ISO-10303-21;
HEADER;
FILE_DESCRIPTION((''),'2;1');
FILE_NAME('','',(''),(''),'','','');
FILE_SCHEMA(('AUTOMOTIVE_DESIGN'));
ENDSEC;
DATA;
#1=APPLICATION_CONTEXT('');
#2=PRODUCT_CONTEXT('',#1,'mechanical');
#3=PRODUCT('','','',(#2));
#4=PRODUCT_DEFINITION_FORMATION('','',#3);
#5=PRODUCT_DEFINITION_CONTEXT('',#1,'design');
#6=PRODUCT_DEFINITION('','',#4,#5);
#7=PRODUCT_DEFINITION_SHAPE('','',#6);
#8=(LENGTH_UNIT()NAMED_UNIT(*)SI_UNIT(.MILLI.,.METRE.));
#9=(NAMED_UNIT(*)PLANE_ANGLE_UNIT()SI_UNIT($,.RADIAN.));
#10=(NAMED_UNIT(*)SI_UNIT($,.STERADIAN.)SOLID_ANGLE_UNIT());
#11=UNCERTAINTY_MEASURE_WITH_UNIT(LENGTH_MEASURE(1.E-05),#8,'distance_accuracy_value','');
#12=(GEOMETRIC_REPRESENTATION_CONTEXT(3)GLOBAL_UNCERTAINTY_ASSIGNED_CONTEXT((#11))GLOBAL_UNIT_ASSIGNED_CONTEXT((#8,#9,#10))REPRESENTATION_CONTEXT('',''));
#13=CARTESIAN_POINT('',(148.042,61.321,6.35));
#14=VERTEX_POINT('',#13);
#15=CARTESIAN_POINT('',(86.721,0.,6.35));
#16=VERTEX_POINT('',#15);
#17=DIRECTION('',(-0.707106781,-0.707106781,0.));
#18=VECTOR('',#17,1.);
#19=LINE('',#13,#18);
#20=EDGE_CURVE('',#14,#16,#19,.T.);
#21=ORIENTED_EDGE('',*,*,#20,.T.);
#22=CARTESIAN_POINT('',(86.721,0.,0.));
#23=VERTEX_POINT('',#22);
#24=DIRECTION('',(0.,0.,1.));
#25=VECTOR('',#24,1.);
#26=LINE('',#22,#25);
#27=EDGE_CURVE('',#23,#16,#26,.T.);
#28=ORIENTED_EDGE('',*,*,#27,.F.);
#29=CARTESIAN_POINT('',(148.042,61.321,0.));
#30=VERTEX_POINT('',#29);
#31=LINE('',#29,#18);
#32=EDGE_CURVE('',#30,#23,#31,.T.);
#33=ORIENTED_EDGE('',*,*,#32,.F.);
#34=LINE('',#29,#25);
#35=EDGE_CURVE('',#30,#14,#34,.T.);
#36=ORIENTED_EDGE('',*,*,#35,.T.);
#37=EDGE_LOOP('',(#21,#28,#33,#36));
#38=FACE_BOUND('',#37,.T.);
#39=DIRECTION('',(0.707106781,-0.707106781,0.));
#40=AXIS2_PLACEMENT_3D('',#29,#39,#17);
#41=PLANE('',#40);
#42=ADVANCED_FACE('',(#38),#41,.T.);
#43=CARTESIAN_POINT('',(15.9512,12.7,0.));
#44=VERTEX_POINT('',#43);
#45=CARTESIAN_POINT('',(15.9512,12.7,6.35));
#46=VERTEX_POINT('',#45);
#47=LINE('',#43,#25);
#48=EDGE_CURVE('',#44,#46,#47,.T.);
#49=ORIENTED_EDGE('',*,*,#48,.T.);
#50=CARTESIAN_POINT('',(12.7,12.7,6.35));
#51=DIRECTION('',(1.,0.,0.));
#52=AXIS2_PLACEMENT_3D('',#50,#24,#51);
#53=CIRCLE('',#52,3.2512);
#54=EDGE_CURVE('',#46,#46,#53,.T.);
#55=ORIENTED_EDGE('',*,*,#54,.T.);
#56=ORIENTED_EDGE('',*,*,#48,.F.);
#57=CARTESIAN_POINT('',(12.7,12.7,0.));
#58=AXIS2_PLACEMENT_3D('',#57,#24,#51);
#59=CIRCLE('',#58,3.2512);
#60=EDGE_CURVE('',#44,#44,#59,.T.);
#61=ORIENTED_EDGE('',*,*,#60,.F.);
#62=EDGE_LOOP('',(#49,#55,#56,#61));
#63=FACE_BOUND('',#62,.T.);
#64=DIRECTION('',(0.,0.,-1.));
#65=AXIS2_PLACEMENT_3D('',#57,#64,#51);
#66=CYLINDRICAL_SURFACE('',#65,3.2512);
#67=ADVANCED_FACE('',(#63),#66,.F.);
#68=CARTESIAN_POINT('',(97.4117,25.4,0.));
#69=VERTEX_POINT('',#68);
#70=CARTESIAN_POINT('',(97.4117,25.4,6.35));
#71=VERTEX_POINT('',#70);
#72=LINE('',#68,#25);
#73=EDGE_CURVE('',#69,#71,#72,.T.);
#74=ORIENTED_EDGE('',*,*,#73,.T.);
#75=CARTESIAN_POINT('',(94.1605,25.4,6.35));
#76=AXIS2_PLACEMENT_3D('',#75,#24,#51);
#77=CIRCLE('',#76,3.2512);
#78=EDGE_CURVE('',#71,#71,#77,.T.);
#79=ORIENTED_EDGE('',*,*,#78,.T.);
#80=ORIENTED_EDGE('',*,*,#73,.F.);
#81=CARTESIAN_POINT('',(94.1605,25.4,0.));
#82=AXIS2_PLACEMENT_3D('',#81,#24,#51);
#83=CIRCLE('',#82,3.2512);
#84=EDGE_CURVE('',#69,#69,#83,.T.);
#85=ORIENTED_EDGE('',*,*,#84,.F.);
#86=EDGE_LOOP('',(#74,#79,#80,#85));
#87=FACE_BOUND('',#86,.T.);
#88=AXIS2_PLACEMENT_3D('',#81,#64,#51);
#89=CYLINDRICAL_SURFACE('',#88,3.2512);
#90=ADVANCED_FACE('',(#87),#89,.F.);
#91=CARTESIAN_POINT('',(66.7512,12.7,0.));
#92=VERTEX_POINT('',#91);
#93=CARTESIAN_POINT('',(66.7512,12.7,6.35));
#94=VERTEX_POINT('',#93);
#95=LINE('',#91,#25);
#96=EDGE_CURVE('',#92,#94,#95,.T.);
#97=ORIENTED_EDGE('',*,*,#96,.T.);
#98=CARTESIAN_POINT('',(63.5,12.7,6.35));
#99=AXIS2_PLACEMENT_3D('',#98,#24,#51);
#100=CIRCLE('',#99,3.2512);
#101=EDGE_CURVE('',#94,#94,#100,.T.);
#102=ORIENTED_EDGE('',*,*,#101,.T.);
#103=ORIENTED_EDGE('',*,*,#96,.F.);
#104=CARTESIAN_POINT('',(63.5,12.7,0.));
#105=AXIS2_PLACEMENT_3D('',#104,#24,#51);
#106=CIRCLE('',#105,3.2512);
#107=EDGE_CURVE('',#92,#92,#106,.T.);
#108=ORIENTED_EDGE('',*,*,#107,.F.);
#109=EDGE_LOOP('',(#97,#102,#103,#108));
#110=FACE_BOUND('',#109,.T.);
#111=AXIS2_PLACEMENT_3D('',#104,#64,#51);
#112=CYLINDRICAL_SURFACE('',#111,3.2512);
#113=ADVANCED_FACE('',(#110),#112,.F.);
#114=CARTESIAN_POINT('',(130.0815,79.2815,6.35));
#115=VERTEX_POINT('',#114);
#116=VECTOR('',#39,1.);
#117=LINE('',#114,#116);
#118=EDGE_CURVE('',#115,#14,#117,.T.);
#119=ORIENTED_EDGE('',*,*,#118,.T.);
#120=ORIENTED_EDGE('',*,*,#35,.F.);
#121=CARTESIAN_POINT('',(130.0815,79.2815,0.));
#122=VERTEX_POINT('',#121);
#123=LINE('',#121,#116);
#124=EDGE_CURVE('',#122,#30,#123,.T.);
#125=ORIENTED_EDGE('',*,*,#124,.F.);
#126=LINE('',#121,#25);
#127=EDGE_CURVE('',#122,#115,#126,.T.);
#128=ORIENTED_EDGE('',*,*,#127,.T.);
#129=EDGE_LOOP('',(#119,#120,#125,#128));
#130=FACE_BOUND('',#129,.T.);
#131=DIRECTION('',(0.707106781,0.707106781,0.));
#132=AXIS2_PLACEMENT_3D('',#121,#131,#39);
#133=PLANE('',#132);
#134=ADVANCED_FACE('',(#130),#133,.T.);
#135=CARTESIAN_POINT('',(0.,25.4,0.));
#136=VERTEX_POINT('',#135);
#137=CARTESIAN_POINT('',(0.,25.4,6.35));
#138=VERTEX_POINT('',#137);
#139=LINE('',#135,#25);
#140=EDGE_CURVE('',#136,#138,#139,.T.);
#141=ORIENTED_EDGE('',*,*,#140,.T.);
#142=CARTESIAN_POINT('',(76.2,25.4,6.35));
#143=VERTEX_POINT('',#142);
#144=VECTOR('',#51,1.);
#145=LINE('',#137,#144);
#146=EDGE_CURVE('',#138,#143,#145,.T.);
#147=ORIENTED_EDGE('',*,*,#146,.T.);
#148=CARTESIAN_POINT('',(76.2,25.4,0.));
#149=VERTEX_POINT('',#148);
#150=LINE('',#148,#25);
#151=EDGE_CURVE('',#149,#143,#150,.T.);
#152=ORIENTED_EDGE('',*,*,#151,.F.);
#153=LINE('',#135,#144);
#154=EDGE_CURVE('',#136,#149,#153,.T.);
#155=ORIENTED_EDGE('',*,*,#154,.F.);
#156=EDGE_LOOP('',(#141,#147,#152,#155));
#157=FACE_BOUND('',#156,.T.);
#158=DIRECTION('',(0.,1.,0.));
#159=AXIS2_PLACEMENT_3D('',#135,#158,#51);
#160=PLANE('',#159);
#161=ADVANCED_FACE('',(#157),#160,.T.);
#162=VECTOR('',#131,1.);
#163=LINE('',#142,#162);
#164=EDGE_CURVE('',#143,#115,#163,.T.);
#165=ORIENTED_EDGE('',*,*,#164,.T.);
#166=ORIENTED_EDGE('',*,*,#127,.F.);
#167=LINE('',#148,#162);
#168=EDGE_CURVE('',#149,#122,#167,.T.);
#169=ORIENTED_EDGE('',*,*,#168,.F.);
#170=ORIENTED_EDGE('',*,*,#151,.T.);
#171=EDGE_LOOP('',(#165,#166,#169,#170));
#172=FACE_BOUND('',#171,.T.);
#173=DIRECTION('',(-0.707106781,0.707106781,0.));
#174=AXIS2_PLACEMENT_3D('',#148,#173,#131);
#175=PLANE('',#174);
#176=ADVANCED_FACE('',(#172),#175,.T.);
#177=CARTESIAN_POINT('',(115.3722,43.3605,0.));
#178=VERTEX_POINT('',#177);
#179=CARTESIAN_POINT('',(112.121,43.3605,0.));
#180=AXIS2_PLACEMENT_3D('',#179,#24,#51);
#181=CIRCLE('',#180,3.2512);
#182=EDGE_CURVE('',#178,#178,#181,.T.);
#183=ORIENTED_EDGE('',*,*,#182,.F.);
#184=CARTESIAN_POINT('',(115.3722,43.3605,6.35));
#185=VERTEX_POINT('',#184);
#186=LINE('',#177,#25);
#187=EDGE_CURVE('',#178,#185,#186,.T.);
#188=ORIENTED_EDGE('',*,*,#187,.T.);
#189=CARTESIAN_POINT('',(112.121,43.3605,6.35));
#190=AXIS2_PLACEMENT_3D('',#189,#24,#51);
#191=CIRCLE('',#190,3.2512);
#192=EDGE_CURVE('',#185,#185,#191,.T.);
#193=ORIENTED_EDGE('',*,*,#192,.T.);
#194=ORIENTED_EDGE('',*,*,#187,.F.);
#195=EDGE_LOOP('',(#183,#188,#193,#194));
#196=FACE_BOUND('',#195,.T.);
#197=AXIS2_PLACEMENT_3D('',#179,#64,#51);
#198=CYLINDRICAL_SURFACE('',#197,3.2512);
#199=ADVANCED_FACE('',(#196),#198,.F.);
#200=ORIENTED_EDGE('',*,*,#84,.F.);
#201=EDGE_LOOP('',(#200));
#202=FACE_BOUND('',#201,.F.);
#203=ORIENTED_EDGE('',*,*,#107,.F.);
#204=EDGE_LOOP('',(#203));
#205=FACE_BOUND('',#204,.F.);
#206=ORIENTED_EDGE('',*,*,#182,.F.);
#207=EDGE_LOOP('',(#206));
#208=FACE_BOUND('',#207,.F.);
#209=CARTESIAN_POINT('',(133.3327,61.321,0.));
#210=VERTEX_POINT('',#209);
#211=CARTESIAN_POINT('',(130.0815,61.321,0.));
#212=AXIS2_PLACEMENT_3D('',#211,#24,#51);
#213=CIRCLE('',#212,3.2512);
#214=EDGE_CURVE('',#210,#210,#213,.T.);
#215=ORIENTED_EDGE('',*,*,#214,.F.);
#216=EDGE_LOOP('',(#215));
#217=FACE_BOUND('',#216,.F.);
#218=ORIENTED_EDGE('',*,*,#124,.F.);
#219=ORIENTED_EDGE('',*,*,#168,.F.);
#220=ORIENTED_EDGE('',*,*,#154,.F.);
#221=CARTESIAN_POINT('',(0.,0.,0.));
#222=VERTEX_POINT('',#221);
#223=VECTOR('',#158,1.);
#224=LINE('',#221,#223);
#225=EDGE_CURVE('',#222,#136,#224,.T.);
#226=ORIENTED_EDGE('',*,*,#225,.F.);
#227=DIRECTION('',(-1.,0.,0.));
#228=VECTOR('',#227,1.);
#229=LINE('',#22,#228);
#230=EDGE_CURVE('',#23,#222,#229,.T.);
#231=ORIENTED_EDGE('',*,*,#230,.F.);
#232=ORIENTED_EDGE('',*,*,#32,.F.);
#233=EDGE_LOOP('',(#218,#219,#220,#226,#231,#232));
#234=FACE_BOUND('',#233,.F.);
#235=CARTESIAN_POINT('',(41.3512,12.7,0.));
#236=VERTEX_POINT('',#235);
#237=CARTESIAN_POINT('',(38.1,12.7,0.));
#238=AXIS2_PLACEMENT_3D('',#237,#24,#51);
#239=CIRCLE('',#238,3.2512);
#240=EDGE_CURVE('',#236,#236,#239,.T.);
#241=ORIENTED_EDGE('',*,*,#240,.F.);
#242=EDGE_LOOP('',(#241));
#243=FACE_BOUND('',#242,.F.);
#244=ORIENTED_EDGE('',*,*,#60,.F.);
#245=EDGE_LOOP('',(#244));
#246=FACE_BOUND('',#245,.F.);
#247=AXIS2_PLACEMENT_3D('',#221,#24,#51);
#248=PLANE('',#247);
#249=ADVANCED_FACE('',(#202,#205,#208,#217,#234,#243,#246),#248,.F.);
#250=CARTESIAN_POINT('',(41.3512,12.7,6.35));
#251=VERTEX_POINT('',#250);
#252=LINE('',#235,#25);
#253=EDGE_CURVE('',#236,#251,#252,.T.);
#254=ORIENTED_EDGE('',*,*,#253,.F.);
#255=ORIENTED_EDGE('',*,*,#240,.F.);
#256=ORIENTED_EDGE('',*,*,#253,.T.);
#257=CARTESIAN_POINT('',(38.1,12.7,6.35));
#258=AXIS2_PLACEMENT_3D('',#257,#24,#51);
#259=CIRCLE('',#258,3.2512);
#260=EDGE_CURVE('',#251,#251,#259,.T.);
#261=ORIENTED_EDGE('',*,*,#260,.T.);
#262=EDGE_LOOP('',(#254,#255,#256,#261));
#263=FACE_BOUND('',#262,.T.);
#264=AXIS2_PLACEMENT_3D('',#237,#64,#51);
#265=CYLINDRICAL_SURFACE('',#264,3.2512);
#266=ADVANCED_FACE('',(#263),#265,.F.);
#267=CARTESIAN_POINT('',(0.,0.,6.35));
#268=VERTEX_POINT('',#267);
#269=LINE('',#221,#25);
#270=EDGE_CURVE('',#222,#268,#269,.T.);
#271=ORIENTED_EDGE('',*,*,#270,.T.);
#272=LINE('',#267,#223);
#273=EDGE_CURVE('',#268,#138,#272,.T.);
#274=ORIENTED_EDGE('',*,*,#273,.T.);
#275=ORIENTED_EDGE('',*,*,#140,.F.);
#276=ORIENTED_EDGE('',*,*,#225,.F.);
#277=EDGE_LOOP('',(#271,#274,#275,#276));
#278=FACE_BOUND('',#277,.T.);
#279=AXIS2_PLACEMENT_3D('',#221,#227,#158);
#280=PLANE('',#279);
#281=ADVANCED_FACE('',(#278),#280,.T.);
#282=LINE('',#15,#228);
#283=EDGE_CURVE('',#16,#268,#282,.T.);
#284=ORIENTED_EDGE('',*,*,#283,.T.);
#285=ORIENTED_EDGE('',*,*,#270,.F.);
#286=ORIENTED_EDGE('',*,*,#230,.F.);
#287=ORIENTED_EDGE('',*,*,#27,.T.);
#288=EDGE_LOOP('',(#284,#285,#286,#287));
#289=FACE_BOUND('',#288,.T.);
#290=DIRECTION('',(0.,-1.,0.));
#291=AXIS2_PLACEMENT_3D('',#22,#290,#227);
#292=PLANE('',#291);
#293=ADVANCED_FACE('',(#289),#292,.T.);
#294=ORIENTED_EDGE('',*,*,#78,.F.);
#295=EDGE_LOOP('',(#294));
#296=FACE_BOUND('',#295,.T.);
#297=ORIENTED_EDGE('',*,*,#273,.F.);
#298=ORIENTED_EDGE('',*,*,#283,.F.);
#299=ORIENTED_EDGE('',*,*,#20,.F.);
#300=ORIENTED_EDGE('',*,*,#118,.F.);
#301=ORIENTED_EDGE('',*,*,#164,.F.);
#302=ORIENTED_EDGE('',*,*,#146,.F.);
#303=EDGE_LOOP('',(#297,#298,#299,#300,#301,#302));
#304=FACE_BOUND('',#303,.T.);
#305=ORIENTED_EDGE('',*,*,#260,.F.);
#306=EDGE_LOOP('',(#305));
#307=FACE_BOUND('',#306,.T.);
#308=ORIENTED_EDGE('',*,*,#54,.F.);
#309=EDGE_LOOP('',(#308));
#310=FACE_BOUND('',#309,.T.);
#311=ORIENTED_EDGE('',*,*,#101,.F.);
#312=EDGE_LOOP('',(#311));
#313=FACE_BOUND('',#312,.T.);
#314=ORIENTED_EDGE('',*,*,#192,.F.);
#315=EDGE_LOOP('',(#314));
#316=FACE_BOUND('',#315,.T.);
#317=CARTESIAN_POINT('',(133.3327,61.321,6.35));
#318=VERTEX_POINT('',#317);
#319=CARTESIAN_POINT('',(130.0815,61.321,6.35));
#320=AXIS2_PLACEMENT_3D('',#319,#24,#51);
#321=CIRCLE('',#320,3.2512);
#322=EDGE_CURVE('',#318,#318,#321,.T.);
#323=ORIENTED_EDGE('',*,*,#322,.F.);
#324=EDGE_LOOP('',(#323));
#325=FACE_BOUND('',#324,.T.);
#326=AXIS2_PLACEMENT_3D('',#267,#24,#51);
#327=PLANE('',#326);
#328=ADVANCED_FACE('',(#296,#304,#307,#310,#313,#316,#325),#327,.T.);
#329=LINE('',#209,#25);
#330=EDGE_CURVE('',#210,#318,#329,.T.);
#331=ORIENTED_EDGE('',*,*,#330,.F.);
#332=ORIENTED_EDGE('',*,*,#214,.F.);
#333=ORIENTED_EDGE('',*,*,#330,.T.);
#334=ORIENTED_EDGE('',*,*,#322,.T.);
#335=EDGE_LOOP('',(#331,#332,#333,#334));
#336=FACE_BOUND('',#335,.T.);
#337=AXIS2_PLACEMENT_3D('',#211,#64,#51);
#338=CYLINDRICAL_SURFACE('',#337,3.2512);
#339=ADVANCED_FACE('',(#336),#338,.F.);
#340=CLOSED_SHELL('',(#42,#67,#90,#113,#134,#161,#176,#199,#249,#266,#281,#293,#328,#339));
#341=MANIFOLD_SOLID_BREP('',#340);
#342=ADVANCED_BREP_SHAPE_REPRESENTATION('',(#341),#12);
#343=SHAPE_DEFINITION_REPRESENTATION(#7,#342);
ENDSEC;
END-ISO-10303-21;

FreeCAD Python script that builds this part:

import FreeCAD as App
import Part
import Sketcher

V = App.Vector
Q = App.Units.Quantity

doc = App.newDocument("Part")
body = doc.addObject("PartDesign::Body", "Body")

sketch1 = body.newObject("Sketcher::SketchObject", "Sketch")
sketch1.AttachmentSupport = (doc.getObject("XY_Plane"), [""])
sketch1.MapMode = "FlatFace"
sketch1.addGeometry(Part.LineSegment(V(0, 25.4, 0), V(0, 0, 0)), False)
sketch1.addGeometry(Part.LineSegment(V(0, 0, 0), V(86.7, 0, 0)), False)
sketch1.addGeometry(Part.LineSegment(V(86.7, 0, 0), V(148, 61.3, 0)), False)
sketch1.addGeometry(Part.LineSegment(V(148, 61.3, 0), V(130.1, 79.3, 0)), False)
sketch1.addGeometry(Part.LineSegment(V(130.1, 79.3, 0), V(76.2, 25.4, 0)), False)
sketch1.addGeometry(Part.LineSegment(V(76.2, 25.4, 0), V(0, 25.4, 0)), False)
sketch1.addGeometry(Part.Circle(V(12.7, 12.7, 0), V(0, 0, 1), 3.3), False)
sketch1.addGeometry(Part.Circle(V(38.1, 12.7, 0), V(0, 0, 1), 3.3), False)
sketch1.addGeometry(Part.Circle(V(63.5, 12.7, 0), V(0, 0, 1), 3.3), False)
sketch1.addGeometry(Part.Circle(V(94.2, 25.4, 0), V(0, 0, 1), 3.3), False)
sketch1.addGeometry(Part.Circle(V(112.1, 43.4, 0), V(0, 0, 1), 3.3), False)
sketch1.addGeometry(Part.Circle(V(130.1, 61.3, 0), V(0, 0, 1), 3.3), False)
sketch1.addConstraint(Sketcher.Constraint("Coincident", 0, 2, 1, 1))
sketch1.addConstraint(Sketcher.Constraint("Coincident", 1, 2, 2, 1))
sketch1.addConstraint(Sketcher.Constraint("Coincident", 2, 2, 3, 1))
sketch1.addConstraint(Sketcher.Constraint("Coincident", 3, 2, 4, 1))
sketch1.addConstraint(Sketcher.Constraint("Coincident", 4, 2, 5, 1))
sketch1.addConstraint(Sketcher.Constraint("Coincident", 5, 2, 0, 1))
sketch1.addConstraint(Sketcher.Constraint("Vertical", 0))
sketch1.addConstraint(Sketcher.Constraint("Horizontal", 1))
sketch1.addConstraint(Sketcher.Constraint("Horizontal", 5))
sketch1.addConstraint(Sketcher.Constraint("Coincident", 0, 2, -1, 1))
sketch1.addConstraint(Sketcher.Constraint("Equal", 6, 7))
sketch1.addConstraint(Sketcher.Constraint("Equal", 7, 8))
sketch1.addConstraint(Sketcher.Constraint("Equal", 8, 9))
sketch1.addConstraint(Sketcher.Constraint("Equal", 9, 10))
sketch1.addConstraint(Sketcher.Constraint("Equal", 10, 11))
sketch1.addConstraint(Sketcher.Constraint("Perpendicular", 2, 3))
sketch1.addConstraint(Sketcher.Constraint("Perpendicular", 3, 4))
sketch1.addConstraint(Sketcher.Constraint("Horizontal", 6, 3, 7, 3))
sketch1.addConstraint(Sketcher.Constraint("Horizontal", 7, 3, 8, 3))
sketch1.addConstraint(Sketcher.Constraint("Horizontal", 11, 3, 2, 2))
sketch1.addConstraint(Sketcher.Constraint("Horizontal", 9, 3, 4, 2))
sketch1.addConstraint(Sketcher.Constraint("Vertical", 11, 3, 3, 2))
sketch1.addConstraint(Sketcher.Constraint("DistanceX", 5, 2, 5, 1, Q("3 in")))
sketch1.addConstraint(Sketcher.Constraint("DistanceY", 0, 2, 0, 1, Q("1 in")))
sketch1.addConstraint(Sketcher.Constraint("Distance", 3, Q("1 in")))
sketch1.addConstraint(Sketcher.Constraint("Distance", 4, Q("3 in")))
sketch1.addConstraint(Sketcher.Constraint("Diameter", 6, Q("0.256 in")))
sketch1.addConstraint(Sketcher.Constraint("Angle", 3, Q("135 deg")))
sketch1.addConstraint(Sketcher.Constraint("DistanceX", 6, 3, 7, 3, Q("1 in")))
sketch1.addConstraint(Sketcher.Constraint("DistanceX", 7, 3, 8, 3, Q("1 in")))
sketch1.addConstraint(Sketcher.Constraint("DistanceX", 1, 2, 10, 3, Q("1 in")))
sketch1.addConstraint(Sketcher.Constraint("DistanceX", -1, 1, 6, 3, Q("0.5 in")))
sketch1.addConstraint(Sketcher.Constraint("DistanceY", -1, 1, 6, 3, Q("0.5 in")))
sketch1.addConstraint(Sketcher.Constraint("DistanceX", -1, 1, 9, 3, Q("3.7071 in")))
sketch1.addConstraint(Sketcher.Constraint("DistanceY", -1, 1, 10, 3, Q("1.7071 in")))
pad1 = body.newObject("PartDesign::Pad", "Pad")
pad1.Profile = sketch1
pad1.Length = Q("0.25 in")

doc.recompute()
